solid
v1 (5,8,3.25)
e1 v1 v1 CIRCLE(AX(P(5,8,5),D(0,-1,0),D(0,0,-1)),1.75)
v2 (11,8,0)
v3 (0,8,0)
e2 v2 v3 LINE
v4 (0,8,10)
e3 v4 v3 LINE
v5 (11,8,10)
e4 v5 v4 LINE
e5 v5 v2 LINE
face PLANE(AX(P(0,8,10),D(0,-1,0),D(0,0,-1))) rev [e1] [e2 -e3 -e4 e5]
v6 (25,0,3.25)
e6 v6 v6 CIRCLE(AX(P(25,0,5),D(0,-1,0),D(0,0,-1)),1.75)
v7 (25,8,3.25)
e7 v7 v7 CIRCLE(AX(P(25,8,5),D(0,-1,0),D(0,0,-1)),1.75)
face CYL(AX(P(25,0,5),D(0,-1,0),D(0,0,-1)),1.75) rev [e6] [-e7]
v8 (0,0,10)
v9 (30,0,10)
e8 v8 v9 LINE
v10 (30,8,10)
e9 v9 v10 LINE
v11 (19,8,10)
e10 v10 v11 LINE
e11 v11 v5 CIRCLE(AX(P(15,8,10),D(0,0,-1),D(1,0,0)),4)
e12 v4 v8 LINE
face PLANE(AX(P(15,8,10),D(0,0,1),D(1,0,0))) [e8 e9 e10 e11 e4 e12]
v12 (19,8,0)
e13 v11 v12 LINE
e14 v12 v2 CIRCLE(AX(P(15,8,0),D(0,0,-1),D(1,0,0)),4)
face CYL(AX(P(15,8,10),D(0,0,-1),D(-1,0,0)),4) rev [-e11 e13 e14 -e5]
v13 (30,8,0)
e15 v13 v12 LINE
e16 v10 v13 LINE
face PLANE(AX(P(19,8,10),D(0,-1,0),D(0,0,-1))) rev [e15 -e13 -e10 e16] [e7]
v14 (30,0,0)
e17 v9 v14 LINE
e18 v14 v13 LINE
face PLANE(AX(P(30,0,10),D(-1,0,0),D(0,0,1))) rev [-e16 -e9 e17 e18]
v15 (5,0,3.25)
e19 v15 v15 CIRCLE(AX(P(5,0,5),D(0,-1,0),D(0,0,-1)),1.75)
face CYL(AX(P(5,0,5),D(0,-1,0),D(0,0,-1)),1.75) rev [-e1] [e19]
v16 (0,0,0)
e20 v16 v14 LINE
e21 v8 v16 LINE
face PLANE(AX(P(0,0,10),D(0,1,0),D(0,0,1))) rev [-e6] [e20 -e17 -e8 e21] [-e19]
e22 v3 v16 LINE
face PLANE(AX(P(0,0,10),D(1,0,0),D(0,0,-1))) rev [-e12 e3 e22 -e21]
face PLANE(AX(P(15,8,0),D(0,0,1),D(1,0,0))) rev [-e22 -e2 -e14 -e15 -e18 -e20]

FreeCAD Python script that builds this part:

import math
import FreeCAD as App
import Part
import Sketcher
Q = App.Units.Quantity

doc = App.newDocument("Part")
body = doc.addObject("PartDesign::Body", "Body")

sketch1 = body.newObject("Sketcher::SketchObject", "Sketch")
sketch1.AttachmentSupport = (doc.getObject("XY_Plane"), [""])
sketch1.MapMode = "FlatFace"
sketch1.addGeometry(Part.LineSegment(App.Vector(30, 8, 0), App.Vector(19, 8, 0)), False)
sketch1.addGeometry(Part.ArcOfCircle(Part.Circle(App.Vector(15, 8, 0), App.Vector(0, 0, 1), 4), math.radians(180), math.radians(360)), False)
sketch1.addGeometry(Part.LineSegment(App.Vector(11, 8, 0), App.Vector(0, 8, 0)), False)
sketch1.addGeometry(Part.LineSegment(App.Vector(0, 8, 0), App.Vector(0, 0, 0)), False)
sketch1.addGeometry(Part.LineSegment(App.Vector(0, 0, 0), App.Vector(30, 0, 0)), False)
sketch1.addGeometry(Part.LineSegment(App.Vector(30, 0, 0), App.Vector(30, 8, 0)), False)
sketch1.addConstraint(Sketcher.Constraint("Coincident", 0, 2, 1, 2))
sketch1.addConstraint(Sketcher.Constraint("Coincident", 1, 1, 2, 1))
sketch1.addConstraint(Sketcher.Constraint("Coincident", 2, 2, 3, 1))
sketch1.addConstraint(Sketcher.Constraint("Coincident", 3, 2, 4, 1))
sketch1.addConstraint(Sketcher.Constraint("Coincident", 4, 2, 5, 1))
sketch1.addConstraint(Sketcher.Constraint("Coincident", 5, 2, 0, 1))
sketch1.addConstraint(Sketcher.Constraint("Horizontal", 0))
sketch1.addConstraint(Sketcher.Constraint("Horizontal", 2))
sketch1.addConstraint(Sketcher.Constraint("Vertical", 3))
sketch1.addConstraint(Sketcher.Constraint("Horizontal", 4))
sketch1.addConstraint(Sketcher.Constraint("Vertical", 5))
sketch1.addConstraint(Sketcher.Constraint("Coincident", 3, 2, -1, 1))
sketch1.addConstraint(Sketcher.Constraint("Horizontal", 1, 3, 0, 2))
sketch1.addConstraint(Sketcher.Constraint("Horizontal", 0, 2, 1, 1))
sketch1.addConstraint(Sketcher.Constraint("Equal", 0, 2))
sketch1.addConstraint(Sketcher.Constraint("Radius", 1, Q("4 mm")))
sketch1.addConstraint(Sketcher.Constraint("DistanceX", 0, 2, 0, 1, Q("11 mm")))
sketch1.addConstraint(Sketcher.Constraint("DistanceY", 3, 2, 3, 1, Q("8 mm")))
pad1 = body.newObject("PartDesign::Pad", "Pad")
pad1.Profile = sketch1
pad1.Length = 10

sketch2 = body.newObject("Sketcher::SketchObject", "Sketch001")
sketch2.AttachmentSupport = (doc.getObject("XZ_Plane"), [""])
sketch2.MapMode = "FlatFace"
sketch2.addGeometry(Part.Circle(App.Vector(5, 5, 0), App.Vector(0, 0, 1), 1.8), False)
sketch2.addGeometry(Part.Circle(App.Vector(25, 5, 0), App.Vector(0, 0, 1), 1.8), False)
sketch2.addConstraint(Sketcher.Constraint("Equal", 0, 1))
sketch2.addConstraint(Sketcher.Constraint("Horizontal", 0, 3, 1, 3))
sketch2.addConstraint(Sketcher.Constraint("Diameter", 0, Q("3.5 mm")))
sketch2.addConstraint(Sketcher.Constraint("DistanceX", -1, 1, 0, 3, Q("5 mm")))
sketch2.addConstraint(Sketcher.Constraint("DistanceY", -1, 1, 0, 3, Q("5 mm")))
sketch2.addConstraint(Sketcher.Constraint("DistanceX", -1, 1, 1, 3, Q("25 mm")))
doc.recompute()
hole = body.newObject("PartDesign::Hole", "Hole")
hole.Profile = sketch2
hole.ThreadType = "None"
hole.Diameter = 3.5
hole.DepthType = "ThroughAll"

doc.recompute()
